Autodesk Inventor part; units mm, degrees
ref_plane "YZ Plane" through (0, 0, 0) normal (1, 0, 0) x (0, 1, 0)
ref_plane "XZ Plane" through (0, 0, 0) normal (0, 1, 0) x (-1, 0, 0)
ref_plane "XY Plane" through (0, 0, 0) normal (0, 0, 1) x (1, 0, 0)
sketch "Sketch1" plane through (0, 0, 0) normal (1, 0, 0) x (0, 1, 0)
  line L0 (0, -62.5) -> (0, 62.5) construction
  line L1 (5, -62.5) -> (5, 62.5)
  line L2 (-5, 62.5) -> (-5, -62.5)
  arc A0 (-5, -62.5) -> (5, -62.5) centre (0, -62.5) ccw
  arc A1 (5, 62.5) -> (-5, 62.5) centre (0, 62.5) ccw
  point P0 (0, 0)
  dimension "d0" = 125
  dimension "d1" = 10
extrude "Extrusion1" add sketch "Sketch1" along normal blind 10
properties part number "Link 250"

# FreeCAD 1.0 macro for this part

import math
import FreeCAD as App
import Part
import Sketcher
from FreeCAD import Vector
Q = App.Units.Quantity

doc = App.newDocument("Part")
body = doc.addObject("PartDesign::Body", "Body")

sketch1 = body.newObject("Sketcher::SketchObject", "Sketch")
sketch1.AttachmentSupport = (doc.getObject("YZ_Plane"), [""])
sketch1.MapMode = "FlatFace"
sketch1.addGeometry([
    Part.ArcOfCircle(Part.Circle(Vector(0, -62, 0), Vector(0, 0, 1), 5), math.radians(180), math.radians(360)),
    Part.LineSegment(Vector(5, -62, 0), Vector(5, 62, 0)),
    Part.ArcOfCircle(Part.Circle(Vector(0, 62, 0), Vector(0, 0, 1), 5), math.radians(0), math.radians(180)),
    Part.LineSegment(Vector(-5, 62, 0), Vector(-5, -62, 0)),
], False)
sketch1.addConstraint([
    Sketcher.Constraint("Tangent", 0, 2, 1, 1),
    Sketcher.Constraint("Tangent", 1, 2, 2, 1),
    Sketcher.Constraint("Tangent", 2, 2, 3, 1),
    Sketcher.Constraint("Tangent", 3, 2, 0, 1),
    Sketcher.Constraint("Vertical", 1),
    Sketcher.Constraint("Vertical", 3),
    Sketcher.Constraint("Symmetric", 0, 3, 2, 3, -1, 1),
    Sketcher.Constraint("Radius", 0, Q("5 mm")),
    Sketcher.Constraint("DistanceY", 1, 1, 1, 2, Q("125 mm")),
])
pad1 = body.newObject("PartDesign::Pad", "Pad")
pad1.Profile = sketch1
pad1.Length = 10

doc.recompute()
